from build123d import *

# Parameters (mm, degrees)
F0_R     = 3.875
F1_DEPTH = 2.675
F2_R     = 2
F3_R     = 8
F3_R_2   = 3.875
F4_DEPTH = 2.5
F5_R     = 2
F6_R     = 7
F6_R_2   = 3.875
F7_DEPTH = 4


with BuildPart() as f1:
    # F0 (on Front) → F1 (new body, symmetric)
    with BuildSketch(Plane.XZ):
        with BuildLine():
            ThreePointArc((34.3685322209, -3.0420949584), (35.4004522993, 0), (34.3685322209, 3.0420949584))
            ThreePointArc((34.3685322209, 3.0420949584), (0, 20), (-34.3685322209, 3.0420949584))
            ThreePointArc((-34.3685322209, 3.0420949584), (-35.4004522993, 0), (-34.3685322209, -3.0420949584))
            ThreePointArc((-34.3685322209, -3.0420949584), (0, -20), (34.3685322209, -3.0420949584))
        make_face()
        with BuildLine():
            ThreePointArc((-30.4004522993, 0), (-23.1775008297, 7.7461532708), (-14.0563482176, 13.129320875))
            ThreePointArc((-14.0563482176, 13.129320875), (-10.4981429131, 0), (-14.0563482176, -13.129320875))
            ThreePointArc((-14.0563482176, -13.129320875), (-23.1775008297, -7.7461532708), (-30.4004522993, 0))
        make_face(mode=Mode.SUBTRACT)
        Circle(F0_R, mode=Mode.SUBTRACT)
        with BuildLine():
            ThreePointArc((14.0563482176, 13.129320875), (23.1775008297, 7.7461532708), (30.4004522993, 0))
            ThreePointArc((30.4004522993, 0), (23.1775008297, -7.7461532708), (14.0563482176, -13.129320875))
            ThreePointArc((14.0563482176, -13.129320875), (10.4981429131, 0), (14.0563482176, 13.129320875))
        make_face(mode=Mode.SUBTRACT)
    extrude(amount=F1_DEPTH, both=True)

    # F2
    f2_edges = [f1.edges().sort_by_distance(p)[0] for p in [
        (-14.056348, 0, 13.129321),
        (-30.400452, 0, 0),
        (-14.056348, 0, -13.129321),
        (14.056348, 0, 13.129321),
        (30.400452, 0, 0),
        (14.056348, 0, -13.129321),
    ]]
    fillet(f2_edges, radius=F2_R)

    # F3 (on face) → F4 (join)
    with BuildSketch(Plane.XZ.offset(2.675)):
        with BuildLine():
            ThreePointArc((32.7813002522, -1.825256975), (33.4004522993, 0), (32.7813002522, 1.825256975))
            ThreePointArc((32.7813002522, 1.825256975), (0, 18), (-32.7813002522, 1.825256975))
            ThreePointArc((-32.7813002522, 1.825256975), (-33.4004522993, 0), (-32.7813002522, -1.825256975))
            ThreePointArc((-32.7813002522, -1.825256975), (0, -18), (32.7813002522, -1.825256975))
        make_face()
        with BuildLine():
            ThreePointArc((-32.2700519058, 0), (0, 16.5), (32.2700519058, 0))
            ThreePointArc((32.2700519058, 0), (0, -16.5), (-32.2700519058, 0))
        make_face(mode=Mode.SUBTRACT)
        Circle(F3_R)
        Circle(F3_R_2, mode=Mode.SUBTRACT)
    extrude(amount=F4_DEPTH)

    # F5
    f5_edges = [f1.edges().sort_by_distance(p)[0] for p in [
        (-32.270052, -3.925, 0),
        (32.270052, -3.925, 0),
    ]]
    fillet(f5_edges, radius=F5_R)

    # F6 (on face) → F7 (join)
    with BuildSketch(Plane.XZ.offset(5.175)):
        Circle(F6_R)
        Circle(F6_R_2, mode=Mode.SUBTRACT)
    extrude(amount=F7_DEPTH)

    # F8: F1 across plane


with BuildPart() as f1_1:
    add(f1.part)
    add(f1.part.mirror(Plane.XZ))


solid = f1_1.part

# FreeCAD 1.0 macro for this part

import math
import FreeCAD as App
import Part
import Sketcher

V = App.Vector


def edges_at(feature, points):
    """Names of the edges that pass closest to the given points."""
    edges = feature.Shape.Edges
    near = lambda p: min(range(len(edges)), key=lambda i: edges[i].distToShape(Part.Vertex(*p))[0])
    return sorted({f"Edge{near(p) + 1}" for p in points})

doc = App.newDocument("Part")
body = doc.addObject("PartDesign::Body", "Body")

# Sketch on XZ plane
sketch1 = body.newObject("Sketcher::SketchObject", "Sketch")
sketch1.AttachmentSupport = (doc.getObject("XZ_Plane"), [""])
sketch1.MapMode = "FlatFace"
sketch1.addGeometry(Part.ArcOfCircle(Part.Circle(V(30.4, 0, 0), V(0, 0, 1), 5), math.radians(-37), math.radians(37)), False)
sketch1.addGeometry(Part.ArcOfCircle(Part.Circle(V(0, -23.3, 0), V(0, 0, 1), 43.3), math.radians(37), math.radians(143)), False)
sketch1.addGeometry(Part.ArcOfCircle(Part.Circle(V(-30.4, 0, 0), V(0, 0, 1), 5), math.radians(143), math.radians(217)), False)
sketch1.addGeometry(Part.ArcOfCircle(Part.Circle(V(0, 23.3, 0), V(0, 0, 1), 43.3), math.radians(-143), math.radians(-37)), False)
sketch1.addGeometry(Part.ArcOfCircle(Part.Circle(V(0, 21.1, 0), V(0, 0, 1), 37), math.radians(-145), math.radians(-112)), False)
sketch1.addGeometry(Part.ArcOfCircle(Part.Circle(V(0, -21.1, 0), V(0, 0, 1), 37), math.radians(112), math.radians(145)), False)
sketch1.addGeometry(Part.ArcOfCircle(Part.Circle(V(-36.5, 0, 0), V(0, 0, 1), 26), math.radians(-30), math.radians(30)), False)
sketch1.addGeometry(Part.Circle(V(0, 0, 0), V(0, 0, 1), 3.9), False)
sketch1.addGeometry(Part.ArcOfCircle(Part.Circle(V(36.5, 0, 0), V(0, 0, 1), 26), math.radians(150), math.radians(210)), False)
sketch1.addGeometry(Part.ArcOfCircle(Part.Circle(V(0, -21.1, 0), V(0, 0, 1), 37), math.radians(35), math.radians(68)), False)
sketch1.addGeometry(Part.ArcOfCircle(Part.Circle(V(0, 21.1, 0), V(0, 0, 1), 37), math.radians(-68), math.radians(-35)), False)
sketch1.addConstraint(Sketcher.Constraint("Tangent", 0, 2, 1, 1))
sketch1.addConstraint(Sketcher.Constraint("Tangent", 1, 2, 2, 1))
sketch1.addConstraint(Sketcher.Constraint("Tangent", 2, 2, 3, 1))
sketch1.addConstraint(Sketcher.Constraint("Tangent", 3, 2, 0, 1))
sketch1.addConstraint(Sketcher.Constraint("Coincident", 4, 1, 5, 2))
sketch1.addConstraint(Sketcher.Constraint("Coincident", 5, 1, 6, 2))
sketch1.addConstraint(Sketcher.Constraint("Coincident", 6, 1, 4, 2))
sketch1.addConstraint(Sketcher.Constraint("Coincident", 8, 1, 9, 2))
sketch1.addConstraint(Sketcher.Constraint("Coincident", 9, 1, 10, 2))
sketch1.addConstraint(Sketcher.Constraint("Coincident", 10, 1, 8, 2))
sketch1.addConstraint(Sketcher.Constraint("Coincident", 7, 3, -1, 1))
sketch1.addConstraint(Sketcher.Constraint("Coincident", 9, 3, 5, 3))
sketch1.addConstraint(Sketcher.Constraint("Coincident", 10, 3, 4, 3))
sketch1.addConstraint(Sketcher.Constraint("Coincident", 4, 1, 2, 3))
sketch1.addConstraint(Sketcher.Constraint("Coincident", 9, 1, 0, 3))
sketch1.addConstraint(Sketcher.Constraint("Equal", 0, 2))
sketch1.addConstraint(Sketcher.Constraint("Equal", 1, 3))
sketch1.addConstraint(Sketcher.Constraint("Equal", 4, 5))
sketch1.addConstraint(Sketcher.Constraint("Equal", 6, 8))
sketch1.addConstraint(Sketcher.Constraint("Equal", 5, 9))
sketch1.addConstraint(Sketcher.Constraint("Equal", 9, 10))
sketch1.addConstraint(Sketcher.Constraint("Symmetric", 0, 3, 2, 3, -1, 1))
sketch1.addConstraint(Sketcher.Constraint("Symmetric", 6, 3, 8, 3, -1, 1))
sketch1.addConstraint(Sketcher.Constraint("Symmetric", 5, 1, 8, 1, -2))
sketch1.addConstraint(Sketcher.Constraint("Radius", 0, 5.0))
sketch1.addConstraint(Sketcher.Constraint("Diameter", 7, 7.75))
sketch1.addConstraint(Sketcher.Constraint("DistanceX", 6, 3, -1, 1, 36.5))
sketch1.addConstraint(Sketcher.Constraint("Radius", 1, 43.30625))
sketch1.addConstraint(Sketcher.Constraint("Radius", 4, 37.009067))
sketch1.addConstraint(Sketcher.Constraint("Radius", 6, 26.001857))
sketch1.addConstraint(Sketcher.Constraint("DistanceY", 1, 3, 3, 3, 46.6125))
pad1 = body.newObject("PartDesign::Pad", "Pad")
pad1.Profile = sketch1
pad1.Length = 5.35
pad1.Midplane = True
doc.recompute()

fillet = body.newObject("PartDesign::Fillet", "Fillet")
fillet.Base = (pad1, edges_at(pad1, [
    (-14.056, 0, 13.129),
    (-30.4, 0, 0),
    (-14.056, 0, -13.129),
    (14.056, 0, 13.129),
    (30.4, 0, 0),
    (14.056, 0, -13.129),
]))
fillet.Radius = 2

# Sketch on XZ plane
sketch2 = body.newObject("Sketcher::SketchObject", "Sketch001")
sketch2.AttachmentSupport = (doc.getObject("XZ_Plane"), [""])
sketch2.MapMode = "FlatFace"
sketch2.AttachmentOffset = App.Placement(V(0, 0, 2.675), App.Rotation())
sketch2.addGeometry(Part.ArcOfCircle(Part.Circle(V(30.4, 0, 0), V(0, 0, 1), 3), math.radians(-37), math.radians(37)), False)
sketch2.addGeometry(Part.ArcOfCircle(Part.Circle(V(0, -23.3, 0), V(0, 0, 1), 41.3), math.radians(37), math.radians(143)), False)
sketch2.addGeometry(Part.ArcOfCircle(Part.Circle(V(-30.4, 0, 0), V(0, 0, 1), 3), math.radians(143), math.radians(217)), False)
sketch2.addGeometry(Part.ArcOfCircle(Part.Circle(V(0, 23.3, 0), V(0, 0, 1), 41.3), math.radians(-143), math.radians(-37)), False)
sketch2.addGeometry(Part.ArcOfCircle(Part.Circle(V(0, 23.3, 0), V(0, 0, 1), 39.8), math.radians(-144), math.radians(-36)), False)
sketch2.addGeometry(Part.ArcOfCircle(Part.Circle(V(0, -23.3, 0), V(0, 0, 1), 39.8), math.radians(36), math.radians(144)), False)
sketch2.addGeometry(Part.Circle(V(0, 0, 0), V(0, 0, 1), 8), False)
sketch2.addGeometry(Part.Circle(V(0, 0, 0), V(0, 0, 1), 3.9), False)
sketch2.addConstraint(Sketcher.Constraint("Tangent", 0, 2, 1, 1))
sketch2.addConstraint(Sketcher.Constraint("Tangent", 1, 2, 2, 1))
sketch2.addConstraint(Sketcher.Constraint("Tangent", 2, 2, 3, 1))
sketch2.addConstraint(Sketcher.Constraint("Tangent", 3, 2, 0, 1))
sketch2.addConstraint(Sketcher.Constraint("Coincident", 4, 1, 5, 2))
sketch2.addConstraint(Sketcher.Constraint("Coincident", 5, 1, 4, 2))
sketch2.addConstraint(Sketcher.Constraint("Coincident", 6, 3, -1, 1))
sketch2.addConstraint(Sketcher.Constraint("Coincident", 7, 3, -1, 1))
sketch2.addConstraint(Sketcher.Constraint("Coincident", 4, 3, 3, 3))
sketch2.addConstraint(Sketcher.Constraint("Coincident", 5, 3, 1, 3))
sketch2.addConstraint(Sketcher.Constraint("Equal", 0, 2))
sketch2.addConstraint(Sketcher.Constraint("Equal", 1, 3))
sketch2.addConstraint(Sketcher.Constraint("Equal", 4, 5))
sketch2.addConstraint(Sketcher.Constraint("Symmetric", 0, 3, 2, 3, -1, 1))
sketch2.addConstraint(Sketcher.Constraint("PointOnObject", 0, 3, -1))
sketch2.addConstraint(Sketcher.Constraint("Diameter", 6, 16.0))
sketch2.addConstraint(Sketcher.Constraint("Radius", 0, 3.0))
sketch2.addConstraint(Sketcher.Constraint("Diameter", 7, 7.75))
sketch2.addConstraint(Sketcher.Constraint("Radius", 1, 41.30625))
sketch2.addConstraint(Sketcher.Constraint("Radius", 4, 39.80625))
sketch2.addConstraint(Sketcher.Constraint("DistanceX", -1, 1, 0, 2, 32.7813))
pad2 = body.newObject("PartDesign::Pad", "Pad001")
pad2.Profile = sketch2
pad2.Length = 2.5
doc.recompute()

fillet2 = body.newObject("PartDesign::Fillet", "Fillet001")
fillet2.Base = (pad2, edges_at(pad2, [(-32.27, -3.925, 0), (32.27, -3.925, 0)]))
fillet2.Radius = 2

# Sketch on XZ plane
sketch3 = body.newObject("Sketcher::SketchObject", "Sketch002")
sketch3.AttachmentSupport = (doc.getObject("XZ_Plane"), [""])
sketch3.MapMode = "FlatFace"
sketch3.AttachmentOffset = App.Placement(V(0, 0, 5.175), App.Rotation())
sketch3.addGeometry(Part.Circle(V(0, 0, 0), V(0, 0, 1), 7), False)
sketch3.addGeometry(Part.Circle(V(0, 0, 0), V(0, 0, 1), 3.9), False)
sketch3.addConstraint(Sketcher.Constraint("Coincident", 0, 3, -1, 1))
sketch3.addConstraint(Sketcher.Constraint("Coincident", 1, 3, -1, 1))
sketch3.addConstraint(Sketcher.Constraint("Diameter", 0, 14.0))
sketch3.addConstraint(Sketcher.Constraint("Diameter", 1, 7.75))
pad3 = body.newObject("PartDesign::Pad", "Pad002")
pad3.Profile = sketch3
pad3.Length = 4
body2 = doc.addObject("PartDesign::Body", "Body001")
doc.recompute()

body2.BaseFeature = body
doc.recompute()

mirroring = doc.addObject("Part::Mirroring", "Mirroring")
mirroring.Source = body
mirroring.Base = V(0, 0, 0)
mirroring.Normal = V(0, -1, 0)
body3 = doc.addObject("PartDesign::Body", "Body002")
body3.BaseFeature = mirroring
boolean = body2.newObject("PartDesign::Boolean", "Boolean")
boolean.Type = "Fuse"
boolean.addObjects([body3])
doc.recompute()
mirroring.Visibility = False

doc.recompute()
